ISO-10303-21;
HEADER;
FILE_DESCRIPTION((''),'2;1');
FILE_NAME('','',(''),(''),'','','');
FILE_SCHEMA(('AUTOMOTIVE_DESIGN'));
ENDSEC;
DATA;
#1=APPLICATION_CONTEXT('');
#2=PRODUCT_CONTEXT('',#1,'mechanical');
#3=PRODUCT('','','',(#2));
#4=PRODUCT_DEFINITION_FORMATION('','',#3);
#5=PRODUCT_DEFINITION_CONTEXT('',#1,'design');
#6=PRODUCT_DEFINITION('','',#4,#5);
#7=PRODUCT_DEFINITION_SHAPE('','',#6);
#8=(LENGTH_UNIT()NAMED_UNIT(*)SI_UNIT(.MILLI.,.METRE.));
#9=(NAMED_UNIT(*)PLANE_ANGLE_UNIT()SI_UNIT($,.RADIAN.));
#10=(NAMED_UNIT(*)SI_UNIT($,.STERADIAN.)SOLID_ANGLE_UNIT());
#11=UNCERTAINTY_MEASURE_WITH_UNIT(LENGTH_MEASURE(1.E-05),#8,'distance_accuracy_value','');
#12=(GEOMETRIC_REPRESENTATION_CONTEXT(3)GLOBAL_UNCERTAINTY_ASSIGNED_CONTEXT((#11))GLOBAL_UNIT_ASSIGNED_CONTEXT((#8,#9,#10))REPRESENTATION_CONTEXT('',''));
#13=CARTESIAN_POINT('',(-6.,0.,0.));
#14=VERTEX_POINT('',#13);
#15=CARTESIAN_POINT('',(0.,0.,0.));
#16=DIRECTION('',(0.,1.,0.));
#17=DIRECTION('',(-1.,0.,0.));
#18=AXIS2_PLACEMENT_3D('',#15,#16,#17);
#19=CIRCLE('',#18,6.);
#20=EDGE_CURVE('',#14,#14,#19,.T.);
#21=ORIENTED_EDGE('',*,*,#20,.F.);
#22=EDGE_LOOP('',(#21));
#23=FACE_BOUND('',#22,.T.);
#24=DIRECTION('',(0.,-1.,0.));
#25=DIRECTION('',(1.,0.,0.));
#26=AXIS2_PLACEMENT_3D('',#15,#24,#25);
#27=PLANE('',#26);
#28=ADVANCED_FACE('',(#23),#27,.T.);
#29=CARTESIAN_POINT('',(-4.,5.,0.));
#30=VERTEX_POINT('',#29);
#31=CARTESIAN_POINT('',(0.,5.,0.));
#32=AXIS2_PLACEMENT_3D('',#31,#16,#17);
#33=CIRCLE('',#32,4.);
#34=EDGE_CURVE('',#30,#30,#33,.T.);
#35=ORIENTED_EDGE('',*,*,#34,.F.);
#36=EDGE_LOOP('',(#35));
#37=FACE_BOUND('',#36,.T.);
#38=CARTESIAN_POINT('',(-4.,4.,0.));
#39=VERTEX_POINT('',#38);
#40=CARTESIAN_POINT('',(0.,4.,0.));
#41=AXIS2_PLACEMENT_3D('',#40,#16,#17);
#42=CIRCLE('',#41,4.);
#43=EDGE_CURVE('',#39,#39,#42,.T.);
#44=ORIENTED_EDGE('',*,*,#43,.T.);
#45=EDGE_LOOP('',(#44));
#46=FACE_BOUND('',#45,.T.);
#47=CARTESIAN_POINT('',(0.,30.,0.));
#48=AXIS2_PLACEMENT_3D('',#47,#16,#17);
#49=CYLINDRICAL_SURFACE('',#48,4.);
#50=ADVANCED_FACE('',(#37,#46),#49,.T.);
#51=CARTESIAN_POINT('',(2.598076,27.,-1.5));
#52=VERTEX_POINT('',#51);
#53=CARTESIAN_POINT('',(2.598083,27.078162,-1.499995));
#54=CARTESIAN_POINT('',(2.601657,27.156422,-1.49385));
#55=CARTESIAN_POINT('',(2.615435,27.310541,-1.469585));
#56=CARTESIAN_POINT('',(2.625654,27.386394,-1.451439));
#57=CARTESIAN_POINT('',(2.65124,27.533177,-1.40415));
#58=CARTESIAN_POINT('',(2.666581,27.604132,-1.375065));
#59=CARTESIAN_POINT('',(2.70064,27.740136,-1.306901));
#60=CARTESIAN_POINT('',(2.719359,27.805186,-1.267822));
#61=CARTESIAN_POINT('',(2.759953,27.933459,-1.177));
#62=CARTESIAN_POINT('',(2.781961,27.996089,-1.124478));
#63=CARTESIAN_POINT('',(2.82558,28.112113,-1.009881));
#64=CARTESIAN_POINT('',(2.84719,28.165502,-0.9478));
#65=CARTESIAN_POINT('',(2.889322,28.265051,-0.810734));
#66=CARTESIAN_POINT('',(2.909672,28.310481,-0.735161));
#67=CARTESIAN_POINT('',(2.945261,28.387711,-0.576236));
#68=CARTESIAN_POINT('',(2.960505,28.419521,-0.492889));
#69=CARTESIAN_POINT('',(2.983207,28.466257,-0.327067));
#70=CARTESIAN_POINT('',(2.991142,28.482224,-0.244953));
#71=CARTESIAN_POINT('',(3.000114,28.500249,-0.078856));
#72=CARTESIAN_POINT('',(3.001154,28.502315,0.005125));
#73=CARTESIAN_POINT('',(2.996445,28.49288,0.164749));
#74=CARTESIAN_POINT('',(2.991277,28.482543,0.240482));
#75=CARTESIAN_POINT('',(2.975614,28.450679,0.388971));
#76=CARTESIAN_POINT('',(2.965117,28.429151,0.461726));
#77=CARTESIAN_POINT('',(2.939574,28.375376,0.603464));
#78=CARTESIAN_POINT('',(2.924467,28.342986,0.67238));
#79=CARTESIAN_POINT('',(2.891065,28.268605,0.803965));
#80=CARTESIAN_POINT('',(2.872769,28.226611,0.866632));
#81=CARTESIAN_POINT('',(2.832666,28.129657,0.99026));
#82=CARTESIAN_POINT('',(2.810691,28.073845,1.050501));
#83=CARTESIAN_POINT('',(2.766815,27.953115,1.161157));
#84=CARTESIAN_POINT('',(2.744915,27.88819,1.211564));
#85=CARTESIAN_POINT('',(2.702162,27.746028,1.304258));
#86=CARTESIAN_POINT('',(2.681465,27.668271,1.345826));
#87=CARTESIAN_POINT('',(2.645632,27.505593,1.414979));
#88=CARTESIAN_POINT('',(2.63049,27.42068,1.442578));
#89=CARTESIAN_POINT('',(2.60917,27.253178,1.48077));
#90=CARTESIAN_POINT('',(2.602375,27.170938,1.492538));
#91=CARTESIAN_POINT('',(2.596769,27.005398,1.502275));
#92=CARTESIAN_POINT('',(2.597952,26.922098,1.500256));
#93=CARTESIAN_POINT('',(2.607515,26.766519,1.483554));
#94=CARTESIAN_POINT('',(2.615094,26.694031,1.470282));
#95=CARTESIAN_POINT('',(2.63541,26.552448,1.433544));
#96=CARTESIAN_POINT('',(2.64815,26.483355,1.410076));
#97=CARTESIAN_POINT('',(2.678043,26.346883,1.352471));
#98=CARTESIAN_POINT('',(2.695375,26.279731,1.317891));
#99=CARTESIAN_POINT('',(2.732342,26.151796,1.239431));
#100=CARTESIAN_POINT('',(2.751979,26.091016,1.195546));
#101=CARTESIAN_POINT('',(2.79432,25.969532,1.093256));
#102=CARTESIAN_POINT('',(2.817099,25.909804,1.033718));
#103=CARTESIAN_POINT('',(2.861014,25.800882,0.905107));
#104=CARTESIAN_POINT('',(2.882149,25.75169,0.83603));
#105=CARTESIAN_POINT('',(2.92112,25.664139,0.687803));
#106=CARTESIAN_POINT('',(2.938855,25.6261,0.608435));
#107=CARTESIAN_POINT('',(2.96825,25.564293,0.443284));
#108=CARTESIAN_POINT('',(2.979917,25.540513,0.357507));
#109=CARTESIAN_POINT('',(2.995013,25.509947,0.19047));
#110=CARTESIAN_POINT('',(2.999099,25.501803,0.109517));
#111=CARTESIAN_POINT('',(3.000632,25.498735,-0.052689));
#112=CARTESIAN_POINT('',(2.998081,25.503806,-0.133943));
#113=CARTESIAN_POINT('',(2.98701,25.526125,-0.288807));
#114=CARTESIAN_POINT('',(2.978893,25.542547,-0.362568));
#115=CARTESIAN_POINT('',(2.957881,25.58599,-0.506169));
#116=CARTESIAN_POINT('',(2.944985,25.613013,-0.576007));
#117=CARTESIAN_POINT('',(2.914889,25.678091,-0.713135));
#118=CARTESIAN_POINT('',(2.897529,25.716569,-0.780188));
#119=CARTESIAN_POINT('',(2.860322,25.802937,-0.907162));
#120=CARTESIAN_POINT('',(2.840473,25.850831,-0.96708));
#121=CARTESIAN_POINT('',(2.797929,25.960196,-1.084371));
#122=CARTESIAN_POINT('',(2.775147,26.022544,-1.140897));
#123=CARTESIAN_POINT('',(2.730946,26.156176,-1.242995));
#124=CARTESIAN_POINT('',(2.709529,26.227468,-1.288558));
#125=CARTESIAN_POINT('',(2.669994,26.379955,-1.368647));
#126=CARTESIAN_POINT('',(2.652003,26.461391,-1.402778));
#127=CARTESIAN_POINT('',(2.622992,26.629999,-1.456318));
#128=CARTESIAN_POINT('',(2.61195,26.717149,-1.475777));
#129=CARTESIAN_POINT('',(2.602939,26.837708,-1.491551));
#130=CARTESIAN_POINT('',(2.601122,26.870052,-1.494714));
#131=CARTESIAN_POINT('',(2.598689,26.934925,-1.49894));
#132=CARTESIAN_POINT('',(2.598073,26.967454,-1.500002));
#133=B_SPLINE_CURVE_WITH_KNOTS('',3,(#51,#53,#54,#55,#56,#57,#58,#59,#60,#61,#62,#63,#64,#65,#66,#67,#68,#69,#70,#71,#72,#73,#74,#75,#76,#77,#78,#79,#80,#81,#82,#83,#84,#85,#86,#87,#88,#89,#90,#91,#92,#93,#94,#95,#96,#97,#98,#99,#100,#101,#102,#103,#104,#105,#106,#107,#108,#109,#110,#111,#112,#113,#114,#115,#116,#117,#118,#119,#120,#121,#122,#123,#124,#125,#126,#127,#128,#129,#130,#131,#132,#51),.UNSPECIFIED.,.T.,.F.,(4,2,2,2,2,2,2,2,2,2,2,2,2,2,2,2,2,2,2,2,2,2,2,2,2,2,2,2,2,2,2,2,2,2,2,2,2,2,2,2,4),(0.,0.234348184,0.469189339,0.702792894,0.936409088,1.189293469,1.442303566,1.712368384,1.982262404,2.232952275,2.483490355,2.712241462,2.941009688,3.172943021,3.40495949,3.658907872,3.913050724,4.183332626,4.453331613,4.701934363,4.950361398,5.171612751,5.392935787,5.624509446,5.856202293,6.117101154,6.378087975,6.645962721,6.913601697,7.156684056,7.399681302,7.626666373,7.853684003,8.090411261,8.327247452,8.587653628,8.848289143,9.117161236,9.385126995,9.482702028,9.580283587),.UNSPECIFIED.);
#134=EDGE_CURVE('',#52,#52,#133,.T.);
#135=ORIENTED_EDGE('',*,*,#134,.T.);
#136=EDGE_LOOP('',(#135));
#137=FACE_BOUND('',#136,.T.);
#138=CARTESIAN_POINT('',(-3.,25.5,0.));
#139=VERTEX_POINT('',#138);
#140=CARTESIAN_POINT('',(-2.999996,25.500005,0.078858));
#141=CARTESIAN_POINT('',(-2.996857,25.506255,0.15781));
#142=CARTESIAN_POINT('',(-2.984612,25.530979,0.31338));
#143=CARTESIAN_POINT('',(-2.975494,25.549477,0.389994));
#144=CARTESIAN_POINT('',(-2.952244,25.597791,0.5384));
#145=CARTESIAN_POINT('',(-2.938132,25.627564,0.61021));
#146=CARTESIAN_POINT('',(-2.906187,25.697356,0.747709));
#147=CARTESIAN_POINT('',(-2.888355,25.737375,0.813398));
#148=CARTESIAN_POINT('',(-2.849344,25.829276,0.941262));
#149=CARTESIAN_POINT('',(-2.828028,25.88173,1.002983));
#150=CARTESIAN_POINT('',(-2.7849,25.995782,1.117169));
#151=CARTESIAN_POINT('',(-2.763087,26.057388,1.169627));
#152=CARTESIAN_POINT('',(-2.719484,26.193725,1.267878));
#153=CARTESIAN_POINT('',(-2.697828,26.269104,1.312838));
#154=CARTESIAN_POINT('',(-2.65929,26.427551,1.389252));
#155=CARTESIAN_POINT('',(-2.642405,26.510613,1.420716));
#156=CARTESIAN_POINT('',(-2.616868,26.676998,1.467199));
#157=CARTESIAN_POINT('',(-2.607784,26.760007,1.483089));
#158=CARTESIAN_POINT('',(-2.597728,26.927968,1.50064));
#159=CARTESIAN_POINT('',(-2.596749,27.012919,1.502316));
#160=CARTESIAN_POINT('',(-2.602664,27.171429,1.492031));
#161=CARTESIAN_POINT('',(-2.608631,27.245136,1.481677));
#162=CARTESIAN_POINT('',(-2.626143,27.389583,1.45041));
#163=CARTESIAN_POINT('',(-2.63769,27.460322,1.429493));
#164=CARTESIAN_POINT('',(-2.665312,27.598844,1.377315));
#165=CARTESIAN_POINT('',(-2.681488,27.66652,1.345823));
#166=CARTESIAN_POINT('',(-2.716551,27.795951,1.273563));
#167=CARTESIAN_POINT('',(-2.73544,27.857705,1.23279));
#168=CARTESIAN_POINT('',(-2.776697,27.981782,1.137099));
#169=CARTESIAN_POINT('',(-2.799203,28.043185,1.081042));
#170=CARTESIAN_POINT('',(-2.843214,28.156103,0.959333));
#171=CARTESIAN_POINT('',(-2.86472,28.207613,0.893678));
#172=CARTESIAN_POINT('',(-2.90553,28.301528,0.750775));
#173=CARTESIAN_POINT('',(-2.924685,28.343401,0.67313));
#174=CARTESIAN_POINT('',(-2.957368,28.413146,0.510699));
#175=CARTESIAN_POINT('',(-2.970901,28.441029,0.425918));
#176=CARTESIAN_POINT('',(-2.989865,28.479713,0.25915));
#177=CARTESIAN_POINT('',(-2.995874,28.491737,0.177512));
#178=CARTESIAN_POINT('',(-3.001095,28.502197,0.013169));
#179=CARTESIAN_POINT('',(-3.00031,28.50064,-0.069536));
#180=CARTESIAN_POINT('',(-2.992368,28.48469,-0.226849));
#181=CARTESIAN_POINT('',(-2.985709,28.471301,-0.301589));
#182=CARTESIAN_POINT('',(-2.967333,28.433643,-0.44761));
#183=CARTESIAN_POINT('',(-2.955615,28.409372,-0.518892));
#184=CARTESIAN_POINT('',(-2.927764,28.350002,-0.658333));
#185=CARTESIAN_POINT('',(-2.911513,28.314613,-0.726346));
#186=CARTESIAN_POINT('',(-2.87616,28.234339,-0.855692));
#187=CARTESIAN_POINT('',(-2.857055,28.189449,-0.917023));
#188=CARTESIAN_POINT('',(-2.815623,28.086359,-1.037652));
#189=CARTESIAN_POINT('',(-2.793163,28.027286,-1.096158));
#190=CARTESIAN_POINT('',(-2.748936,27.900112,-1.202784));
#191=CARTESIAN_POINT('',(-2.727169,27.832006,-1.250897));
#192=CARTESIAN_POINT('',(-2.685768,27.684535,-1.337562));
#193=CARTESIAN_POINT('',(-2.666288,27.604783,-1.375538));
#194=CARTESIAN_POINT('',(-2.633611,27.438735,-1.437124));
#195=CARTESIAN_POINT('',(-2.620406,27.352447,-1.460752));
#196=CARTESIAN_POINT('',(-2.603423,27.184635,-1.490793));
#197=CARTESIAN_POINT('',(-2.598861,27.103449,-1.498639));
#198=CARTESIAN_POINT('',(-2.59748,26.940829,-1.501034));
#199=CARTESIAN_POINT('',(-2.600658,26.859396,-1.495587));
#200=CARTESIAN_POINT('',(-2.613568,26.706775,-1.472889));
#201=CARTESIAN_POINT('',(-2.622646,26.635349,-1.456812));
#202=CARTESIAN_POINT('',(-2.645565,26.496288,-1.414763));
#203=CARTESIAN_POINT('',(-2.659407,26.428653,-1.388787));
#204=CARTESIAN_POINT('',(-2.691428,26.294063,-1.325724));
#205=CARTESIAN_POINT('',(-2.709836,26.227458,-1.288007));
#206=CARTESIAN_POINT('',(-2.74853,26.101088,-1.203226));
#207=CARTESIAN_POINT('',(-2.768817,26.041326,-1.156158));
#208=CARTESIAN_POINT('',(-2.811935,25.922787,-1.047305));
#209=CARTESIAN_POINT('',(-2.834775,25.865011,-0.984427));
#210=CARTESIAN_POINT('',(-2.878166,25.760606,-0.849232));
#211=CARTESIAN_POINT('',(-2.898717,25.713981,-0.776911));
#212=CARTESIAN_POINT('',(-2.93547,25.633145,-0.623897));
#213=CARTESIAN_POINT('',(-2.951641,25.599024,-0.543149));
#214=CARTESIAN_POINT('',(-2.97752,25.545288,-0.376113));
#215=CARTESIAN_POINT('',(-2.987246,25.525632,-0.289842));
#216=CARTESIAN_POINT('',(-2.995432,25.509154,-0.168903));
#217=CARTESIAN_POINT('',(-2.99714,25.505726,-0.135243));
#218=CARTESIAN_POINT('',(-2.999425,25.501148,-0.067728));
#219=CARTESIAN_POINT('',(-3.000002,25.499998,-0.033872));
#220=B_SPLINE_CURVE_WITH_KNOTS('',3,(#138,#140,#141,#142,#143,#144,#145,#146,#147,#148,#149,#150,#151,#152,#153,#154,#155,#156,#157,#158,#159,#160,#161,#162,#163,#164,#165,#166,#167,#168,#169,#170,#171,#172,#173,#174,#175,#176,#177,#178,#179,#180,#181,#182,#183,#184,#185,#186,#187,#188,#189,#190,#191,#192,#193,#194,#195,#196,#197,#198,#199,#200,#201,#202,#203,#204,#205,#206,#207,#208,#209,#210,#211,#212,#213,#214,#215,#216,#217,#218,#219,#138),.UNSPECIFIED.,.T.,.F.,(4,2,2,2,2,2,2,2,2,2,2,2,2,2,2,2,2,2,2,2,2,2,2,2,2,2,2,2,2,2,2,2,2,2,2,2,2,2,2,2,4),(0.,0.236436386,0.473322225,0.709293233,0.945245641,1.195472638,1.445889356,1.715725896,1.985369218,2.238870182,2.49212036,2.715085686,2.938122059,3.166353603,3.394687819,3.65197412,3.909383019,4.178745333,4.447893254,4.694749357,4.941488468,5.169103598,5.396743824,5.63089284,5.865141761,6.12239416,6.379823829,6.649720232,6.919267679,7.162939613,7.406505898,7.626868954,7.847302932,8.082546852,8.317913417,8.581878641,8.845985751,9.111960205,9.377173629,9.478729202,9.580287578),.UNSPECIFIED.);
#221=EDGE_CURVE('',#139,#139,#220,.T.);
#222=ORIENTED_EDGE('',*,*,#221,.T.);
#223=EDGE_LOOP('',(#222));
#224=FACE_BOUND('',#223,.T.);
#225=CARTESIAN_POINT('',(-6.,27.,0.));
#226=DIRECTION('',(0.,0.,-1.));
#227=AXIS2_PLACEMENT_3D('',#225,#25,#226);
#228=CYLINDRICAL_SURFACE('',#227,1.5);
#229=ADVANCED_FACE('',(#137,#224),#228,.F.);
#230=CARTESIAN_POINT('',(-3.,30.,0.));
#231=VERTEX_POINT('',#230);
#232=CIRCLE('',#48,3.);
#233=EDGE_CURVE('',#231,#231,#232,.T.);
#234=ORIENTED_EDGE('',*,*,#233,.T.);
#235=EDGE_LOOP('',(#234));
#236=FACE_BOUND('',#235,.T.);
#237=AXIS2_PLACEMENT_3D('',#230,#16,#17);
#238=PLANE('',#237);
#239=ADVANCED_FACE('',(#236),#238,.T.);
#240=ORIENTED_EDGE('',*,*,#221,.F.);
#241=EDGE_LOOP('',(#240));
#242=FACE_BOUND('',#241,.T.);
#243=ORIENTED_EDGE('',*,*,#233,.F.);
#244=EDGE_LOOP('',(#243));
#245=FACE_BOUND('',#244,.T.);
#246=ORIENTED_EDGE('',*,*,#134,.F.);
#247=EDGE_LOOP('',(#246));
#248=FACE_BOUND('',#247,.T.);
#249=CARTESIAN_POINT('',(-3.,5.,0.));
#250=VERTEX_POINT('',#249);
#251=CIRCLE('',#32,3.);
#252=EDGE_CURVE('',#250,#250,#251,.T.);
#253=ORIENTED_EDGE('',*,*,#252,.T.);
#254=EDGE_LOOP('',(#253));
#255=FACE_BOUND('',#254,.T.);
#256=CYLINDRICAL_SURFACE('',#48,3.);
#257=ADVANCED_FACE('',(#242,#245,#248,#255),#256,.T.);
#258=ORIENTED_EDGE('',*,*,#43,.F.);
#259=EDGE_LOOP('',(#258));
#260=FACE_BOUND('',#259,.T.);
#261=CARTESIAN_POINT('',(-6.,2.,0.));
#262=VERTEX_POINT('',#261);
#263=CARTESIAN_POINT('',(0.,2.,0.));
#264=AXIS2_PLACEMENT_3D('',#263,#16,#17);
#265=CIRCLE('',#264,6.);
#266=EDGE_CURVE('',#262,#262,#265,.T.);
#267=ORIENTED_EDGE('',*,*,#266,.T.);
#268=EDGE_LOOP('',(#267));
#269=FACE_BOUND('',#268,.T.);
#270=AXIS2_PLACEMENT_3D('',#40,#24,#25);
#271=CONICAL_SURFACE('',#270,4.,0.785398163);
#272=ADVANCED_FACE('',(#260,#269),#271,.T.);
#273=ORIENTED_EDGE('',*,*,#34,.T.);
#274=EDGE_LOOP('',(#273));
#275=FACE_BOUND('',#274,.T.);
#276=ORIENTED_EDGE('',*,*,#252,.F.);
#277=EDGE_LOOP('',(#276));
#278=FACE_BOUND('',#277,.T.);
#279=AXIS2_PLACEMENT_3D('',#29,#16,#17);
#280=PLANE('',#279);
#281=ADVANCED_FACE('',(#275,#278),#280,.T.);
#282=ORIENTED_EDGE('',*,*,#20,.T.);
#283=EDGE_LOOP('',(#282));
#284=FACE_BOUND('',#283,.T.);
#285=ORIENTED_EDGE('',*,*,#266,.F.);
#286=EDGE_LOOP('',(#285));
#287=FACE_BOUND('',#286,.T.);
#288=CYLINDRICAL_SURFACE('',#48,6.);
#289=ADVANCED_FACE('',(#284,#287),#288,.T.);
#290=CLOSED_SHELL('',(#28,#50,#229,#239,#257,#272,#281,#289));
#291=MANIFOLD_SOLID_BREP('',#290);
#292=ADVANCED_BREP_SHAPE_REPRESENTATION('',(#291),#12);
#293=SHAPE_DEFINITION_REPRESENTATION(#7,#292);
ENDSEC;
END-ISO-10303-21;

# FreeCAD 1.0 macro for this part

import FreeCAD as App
import Part
import Sketcher
Q = App.Units.Quantity


def add_polygon(sketch, points):
    """Adds a closed chain of lines whose ends are joined by coincident constraints."""
    first, n = sketch.GeometryCount, len(points)
    for a, b in zip(points, points[1:] + points[:1]):
        sketch.addGeometry(Part.LineSegment(App.Vector(*a, 0), App.Vector(*b, 0)), False)
    for i in range(n):
        sketch.addConstraint(Sketcher.Constraint("Coincident", first + i, 2, first + (i + 1) % n, 1))

doc = App.newDocument("Part")
body = doc.addObject("PartDesign::Body", "Body")

# Sketch on XY plane
sketch1 = body.newObject("Sketcher::SketchObject", "Sketch")
sketch1.AttachmentSupport = (doc.getObject("XY_Plane"), [""])
sketch1.MapMode = "FlatFace"
add_polygon(sketch1, [(-6, 0), (0, 0), (0, 30), (-3, 30), (-3, 5), (-4, 5), (-4, 4), (-6, 2)])  # lines 0-7
sketch1.addConstraint([
    Sketcher.Constraint("Horizontal", 0),
    Sketcher.Constraint("Vertical", 1),
    Sketcher.Constraint("Horizontal", 2),
    Sketcher.Constraint("Vertical", 3),
    Sketcher.Constraint("Horizontal", 4),
    Sketcher.Constraint("Vertical", 5),
    Sketcher.Constraint("Vertical", 7),
    Sketcher.Constraint("Coincident", 0, 2, -1, 1),
    Sketcher.Constraint("Equal", 4, 5),
    Sketcher.Constraint("DistanceX", 0, 1, 0, 2, Q("6 mm")),
    Sketcher.Constraint("DistanceX", 2, 2, 2, 1, Q("3 mm")),
    Sketcher.Constraint("DistanceX", 4, 2, 4, 1, Q("1 mm")),
    Sketcher.Constraint("DistanceY", 1, 1, 1, 2, Q("30 mm")),
    Sketcher.Constraint("DistanceY", 3, 2, 3, 1, Q("25 mm")),
    Sketcher.Constraint("DistanceY", 7, 2, 7, 1, Q("2 mm")),
])
revolution = body.newObject("PartDesign::Revolution", "Revolution")
revolution.Profile = sketch1
revolution.ReferenceAxis = (sketch1, ["V_Axis"])
revolution.Angle = 360

# Sketch on YZ plane
sketch2 = body.newObject("Sketcher::SketchObject", "Sketch001")
sketch2.AttachmentSupport = (doc.getObject("YZ_Plane"), [""])
sketch2.MapMode = "FlatFace"
sketch2.addGeometry(Part.Circle(App.Vector(27, 0, 0), App.Vector(0, 0, 1), 1.5), False)
sketch2.addConstraint([
    Sketcher.Constraint("PointOnObject", 0, 3, -1),
    Sketcher.Constraint("Diameter", 0, Q("3 mm")),
    Sketcher.Constraint("DistanceX", -1, 1, 0, 3, Q("27 mm")),
])
pocket1 = body.newObject("PartDesign::Pocket", "Pocket")
pocket1.Profile = sketch2
pocket1.Type = "ThroughAll"
pocket1.Midplane = True

doc.recompute()
